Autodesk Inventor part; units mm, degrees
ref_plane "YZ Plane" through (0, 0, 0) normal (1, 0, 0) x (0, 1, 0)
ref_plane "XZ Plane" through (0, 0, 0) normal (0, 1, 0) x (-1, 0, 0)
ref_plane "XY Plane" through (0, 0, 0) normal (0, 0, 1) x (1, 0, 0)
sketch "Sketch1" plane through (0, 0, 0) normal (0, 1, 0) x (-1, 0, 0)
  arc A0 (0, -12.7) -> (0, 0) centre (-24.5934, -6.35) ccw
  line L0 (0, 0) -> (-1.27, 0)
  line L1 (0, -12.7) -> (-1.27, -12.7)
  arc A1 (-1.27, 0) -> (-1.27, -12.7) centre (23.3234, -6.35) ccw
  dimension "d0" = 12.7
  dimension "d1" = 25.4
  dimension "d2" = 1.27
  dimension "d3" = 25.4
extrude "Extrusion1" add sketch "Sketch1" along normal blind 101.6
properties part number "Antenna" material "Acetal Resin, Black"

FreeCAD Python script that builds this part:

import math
import FreeCAD as App
import Part
import Sketcher

V = App.Vector
Q = App.Units.Quantity

doc = App.newDocument("Part")
body = doc.addObject("PartDesign::Body", "Body")

# Sketch on XZ plane
sketch1 = body.newObject("Sketcher::SketchObject", "Sketch")
sketch1.AttachmentSupport = (doc.getObject("XZ_Plane"), [""])
sketch1.MapMode = "FlatFace"
sketch1.addGeometry([
    Part.LineSegment(V(1.27, -12.7, 0), V(0, -12.7, 0)),
    Part.ArcOfCircle(Part.Circle(V(24.5934, -6.35, 0), V(0, 0, 1), 25.399957), math.radians(165.522463), math.radians(194.477537)),
    Part.LineSegment(V(0, 0, 0), V(1.27, 0, 0)),
    Part.ArcOfCircle(Part.Circle(V(-23.3234, -6.35, 0), V(0, 0, 1), 25.399957), math.radians(-14.477537), math.radians(14.477537)),
], False)
sketch1.addConstraint([
    Sketcher.Constraint("Coincident", 0, 2, 1, 2),
    Sketcher.Constraint("Coincident", 1, 1, 2, 1),
    Sketcher.Constraint("Coincident", 2, 2, 3, 2),
    Sketcher.Constraint("Coincident", 3, 1, 0, 1),
    Sketcher.Constraint("Horizontal", 0),
    Sketcher.Constraint("Horizontal", 2),
    Sketcher.Constraint("Coincident", 1, 1, -1, 1),
    Sketcher.Constraint("Equal", 1, 3),
    Sketcher.Constraint("PointOnObject", 0, 2, -2),
    Sketcher.Constraint("Horizontal", 1, 3, 3, 3),
    Sketcher.Constraint("Radius", 1, Q("1 in")),
    Sketcher.Constraint("DistanceX", 0, 2, 0, 1, Q("0.05 in")),
    Sketcher.Constraint("DistanceY", 0, 2, -1, 1, Q("0.5 in")),
])
pad1 = body.newObject("PartDesign::Pad", "Pad")
pad1.Profile = sketch1
pad1.Length = Q("4 in")
pad1.Reversed = True

doc.recompute()
